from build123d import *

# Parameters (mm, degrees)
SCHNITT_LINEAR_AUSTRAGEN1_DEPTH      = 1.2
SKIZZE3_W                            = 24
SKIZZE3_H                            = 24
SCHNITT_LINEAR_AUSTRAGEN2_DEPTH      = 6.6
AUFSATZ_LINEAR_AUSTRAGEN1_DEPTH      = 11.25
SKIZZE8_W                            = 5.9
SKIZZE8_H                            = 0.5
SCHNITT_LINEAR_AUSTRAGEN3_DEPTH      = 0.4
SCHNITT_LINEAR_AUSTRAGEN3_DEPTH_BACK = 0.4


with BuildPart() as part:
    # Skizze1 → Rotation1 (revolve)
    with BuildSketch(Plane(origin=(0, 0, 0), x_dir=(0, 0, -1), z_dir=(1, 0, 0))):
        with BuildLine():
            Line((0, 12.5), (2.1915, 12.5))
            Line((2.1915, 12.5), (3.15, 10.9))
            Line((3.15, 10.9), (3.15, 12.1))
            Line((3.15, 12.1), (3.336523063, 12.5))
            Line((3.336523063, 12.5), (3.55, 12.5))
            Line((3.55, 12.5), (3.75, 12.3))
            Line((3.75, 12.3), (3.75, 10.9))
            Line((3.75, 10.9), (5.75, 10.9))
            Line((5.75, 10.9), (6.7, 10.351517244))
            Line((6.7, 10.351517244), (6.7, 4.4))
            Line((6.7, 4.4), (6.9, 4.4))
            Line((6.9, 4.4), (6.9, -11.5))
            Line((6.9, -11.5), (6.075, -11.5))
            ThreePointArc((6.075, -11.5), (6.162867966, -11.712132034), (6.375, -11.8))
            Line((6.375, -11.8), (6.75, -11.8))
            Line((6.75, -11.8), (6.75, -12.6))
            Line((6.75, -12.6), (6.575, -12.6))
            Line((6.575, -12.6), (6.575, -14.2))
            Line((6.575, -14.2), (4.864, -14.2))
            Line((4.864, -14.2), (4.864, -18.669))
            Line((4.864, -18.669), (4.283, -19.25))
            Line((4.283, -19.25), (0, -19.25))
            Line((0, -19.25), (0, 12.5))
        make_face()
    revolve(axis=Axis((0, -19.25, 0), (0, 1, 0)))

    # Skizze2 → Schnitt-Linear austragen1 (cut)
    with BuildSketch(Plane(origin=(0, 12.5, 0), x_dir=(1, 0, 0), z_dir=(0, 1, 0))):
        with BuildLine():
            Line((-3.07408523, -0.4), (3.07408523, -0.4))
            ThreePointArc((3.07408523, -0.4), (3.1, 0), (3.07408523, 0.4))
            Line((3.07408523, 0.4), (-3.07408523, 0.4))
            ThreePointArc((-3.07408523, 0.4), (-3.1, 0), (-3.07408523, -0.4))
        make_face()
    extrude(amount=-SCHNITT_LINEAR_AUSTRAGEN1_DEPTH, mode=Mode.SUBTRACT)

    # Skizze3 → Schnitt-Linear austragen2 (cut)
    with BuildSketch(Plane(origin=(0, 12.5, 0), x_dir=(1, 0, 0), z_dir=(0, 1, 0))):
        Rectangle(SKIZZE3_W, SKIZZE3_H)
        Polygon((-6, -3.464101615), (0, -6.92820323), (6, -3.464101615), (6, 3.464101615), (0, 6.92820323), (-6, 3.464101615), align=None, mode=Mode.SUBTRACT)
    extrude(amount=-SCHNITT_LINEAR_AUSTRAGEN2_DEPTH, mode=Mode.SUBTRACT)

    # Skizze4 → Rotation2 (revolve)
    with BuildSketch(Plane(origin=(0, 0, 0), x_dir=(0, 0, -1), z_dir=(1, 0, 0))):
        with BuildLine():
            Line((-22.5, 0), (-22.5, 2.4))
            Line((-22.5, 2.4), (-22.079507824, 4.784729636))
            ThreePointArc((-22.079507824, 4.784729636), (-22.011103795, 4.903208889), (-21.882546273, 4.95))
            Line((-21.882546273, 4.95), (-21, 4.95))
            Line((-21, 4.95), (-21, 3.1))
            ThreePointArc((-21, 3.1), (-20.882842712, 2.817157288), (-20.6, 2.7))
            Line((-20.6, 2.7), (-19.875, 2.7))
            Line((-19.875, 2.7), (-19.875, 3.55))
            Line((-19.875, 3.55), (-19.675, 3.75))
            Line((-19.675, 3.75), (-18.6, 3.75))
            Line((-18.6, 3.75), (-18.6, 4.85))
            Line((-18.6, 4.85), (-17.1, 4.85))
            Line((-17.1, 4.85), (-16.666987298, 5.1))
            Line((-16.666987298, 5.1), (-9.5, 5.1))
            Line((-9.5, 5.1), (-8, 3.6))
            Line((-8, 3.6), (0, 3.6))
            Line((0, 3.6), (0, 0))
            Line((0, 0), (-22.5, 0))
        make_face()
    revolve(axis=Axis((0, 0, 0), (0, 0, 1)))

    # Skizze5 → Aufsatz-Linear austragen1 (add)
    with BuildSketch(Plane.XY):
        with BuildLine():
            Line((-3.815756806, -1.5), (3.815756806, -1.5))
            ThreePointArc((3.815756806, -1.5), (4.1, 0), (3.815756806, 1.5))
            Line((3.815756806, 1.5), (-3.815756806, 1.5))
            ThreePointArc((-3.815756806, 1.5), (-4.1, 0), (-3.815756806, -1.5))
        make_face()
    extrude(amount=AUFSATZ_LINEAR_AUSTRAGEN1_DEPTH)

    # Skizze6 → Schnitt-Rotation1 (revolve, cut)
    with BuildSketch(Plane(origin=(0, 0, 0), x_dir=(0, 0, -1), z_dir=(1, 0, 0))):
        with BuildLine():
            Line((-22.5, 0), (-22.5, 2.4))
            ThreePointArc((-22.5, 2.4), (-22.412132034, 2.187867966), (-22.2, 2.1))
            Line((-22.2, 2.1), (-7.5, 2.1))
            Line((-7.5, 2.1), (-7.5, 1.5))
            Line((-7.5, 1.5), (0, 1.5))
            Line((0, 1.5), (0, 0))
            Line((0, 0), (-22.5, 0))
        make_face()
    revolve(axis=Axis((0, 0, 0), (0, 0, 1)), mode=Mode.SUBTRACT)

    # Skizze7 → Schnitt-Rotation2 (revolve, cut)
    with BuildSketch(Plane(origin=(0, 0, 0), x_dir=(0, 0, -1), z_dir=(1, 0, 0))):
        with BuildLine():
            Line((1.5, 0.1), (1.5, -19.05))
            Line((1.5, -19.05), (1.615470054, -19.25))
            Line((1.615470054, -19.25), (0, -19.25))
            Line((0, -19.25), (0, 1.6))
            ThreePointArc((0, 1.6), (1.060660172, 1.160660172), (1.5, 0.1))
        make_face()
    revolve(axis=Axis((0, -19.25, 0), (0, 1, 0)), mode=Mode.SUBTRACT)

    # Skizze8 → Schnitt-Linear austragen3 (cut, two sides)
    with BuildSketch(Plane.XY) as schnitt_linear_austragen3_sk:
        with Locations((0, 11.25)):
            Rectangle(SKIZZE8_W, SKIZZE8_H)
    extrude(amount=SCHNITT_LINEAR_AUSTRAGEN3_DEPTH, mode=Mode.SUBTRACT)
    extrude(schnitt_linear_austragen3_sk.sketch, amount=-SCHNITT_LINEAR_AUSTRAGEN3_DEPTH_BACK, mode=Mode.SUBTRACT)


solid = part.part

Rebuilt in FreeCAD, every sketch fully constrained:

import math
import FreeCAD as App
import Part
import Sketcher
Q = App.Units.Quantity


def add_polygon(sketch, points):
    """Adds a closed chain of lines whose ends are joined by coincident constraints."""
    first, n = sketch.GeometryCount, len(points)
    for a, b in zip(points, points[1:] + points[:1]):
        sketch.addGeometry(Part.LineSegment(App.Vector(*a, 0), App.Vector(*b, 0)), False)
    for i in range(n):
        sketch.addConstraint(Sketcher.Constraint("Coincident", first + i, 2, first + (i + 1) % n, 1))

doc = App.newDocument("Part")
body = doc.addObject("PartDesign::Body", "Body")

# Sketch on YZ plane
sketch1 = body.newObject("Sketcher::SketchObject", "Sketch")
sketch1.AttachmentSupport = (doc.getObject("YZ_Plane"), [""])
sketch1.MapMode = "FlatFace"
sketch1.addGeometry(Part.LineSegment(App.Vector(12.5, -2.19, 0), App.Vector(12.5, 0, 0)), False)
sketch1.addGeometry(Part.LineSegment(App.Vector(12.5, 0, 0), App.Vector(-19.25, 0, 0)), False)
sketch1.addGeometry(Part.LineSegment(App.Vector(-19.25, 0, 0), App.Vector(-19.25, -4.28, 0)), False)
sketch1.addGeometry(Part.LineSegment(App.Vector(-19.25, -4.28, 0), App.Vector(-18.67, -4.86, 0)), False)
sketch1.addGeometry(Part.LineSegment(App.Vector(-18.67, -4.86, 0), App.Vector(-14.2, -4.86, 0)), False)
sketch1.addGeometry(Part.LineSegment(App.Vector(-14.2, -4.86, 0), App.Vector(-14.2, -6.58, 0)), False)
sketch1.addGeometry(Part.LineSegment(App.Vector(-14.2, -6.58, 0), App.Vector(-12.6, -6.58, 0)), False)
sketch1.addGeometry(Part.LineSegment(App.Vector(-12.6, -6.58, 0), App.Vector(-12.6, -6.75, 0)), False)
sketch1.addGeometry(Part.LineSegment(App.Vector(-12.6, -6.75, 0), App.Vector(-11.8, -6.75, 0)), False)
sketch1.addGeometry(Part.LineSegment(App.Vector(-11.8, -6.75, 0), App.Vector(-11.8, -6.38, 0)), False)
sketch1.addGeometry(Part.ArcOfCircle(Part.Circle(App.Vector(-11.5, -6.38, 0), App.Vector(0, 0, 1), 0.3), math.radians(90), math.radians(180)), False)
sketch1.addGeometry(Part.LineSegment(App.Vector(-11.5, -6.08, 0), App.Vector(-11.5, -6.9, 0)), False)
sketch1.addGeometry(Part.LineSegment(App.Vector(-11.5, -6.9, 0), App.Vector(4.4, -6.9, 0)), False)
sketch1.addGeometry(Part.LineSegment(App.Vector(4.4, -6.9, 0), App.Vector(4.4, -6.7, 0)), False)
sketch1.addGeometry(Part.LineSegment(App.Vector(4.4, -6.7, 0), App.Vector(10.35, -6.7, 0)), False)
sketch1.addGeometry(Part.LineSegment(App.Vector(10.35, -6.7, 0), App.Vector(10.9, -5.75, 0)), False)
sketch1.addGeometry(Part.LineSegment(App.Vector(10.9, -5.75, 0), App.Vector(10.9, -3.75, 0)), False)
sketch1.addGeometry(Part.LineSegment(App.Vector(10.9, -3.75, 0), App.Vector(12.3, -3.75, 0)), False)
sketch1.addGeometry(Part.LineSegment(App.Vector(12.3, -3.75, 0), App.Vector(12.5, -3.55, 0)), False)
sketch1.addGeometry(Part.LineSegment(App.Vector(12.5, -3.55, 0), App.Vector(12.5, -3.34, 0)), False)
sketch1.addGeometry(Part.LineSegment(App.Vector(12.5, -3.34, 0), App.Vector(12.1, -3.15, 0)), False)
sketch1.addGeometry(Part.LineSegment(App.Vector(12.1, -3.15, 0), App.Vector(10.9, -3.15, 0)), False)
sketch1.addGeometry(Part.LineSegment(App.Vector(10.9, -3.15, 0), App.Vector(12.5, -2.19, 0)), False)
sketch1.addConstraint(Sketcher.Constraint("Coincident", 0, 2, 1, 1))
sketch1.addConstraint(Sketcher.Constraint("Coincident", 1, 2, 2, 1))
sketch1.addConstraint(Sketcher.Constraint("Coincident", 2, 2, 3, 1))
sketch1.addConstraint(Sketcher.Constraint("Coincident", 3, 2, 4, 1))
sketch1.addConstraint(Sketcher.Constraint("Coincident", 4, 2, 5, 1))
sketch1.addConstraint(Sketcher.Constraint("Coincident", 5, 2, 6, 1))
sketch1.addConstraint(Sketcher.Constraint("Coincident", 6, 2, 7, 1))
sketch1.addConstraint(Sketcher.Constraint("Coincident", 7, 2, 8, 1))
sketch1.addConstraint(Sketcher.Constraint("Coincident", 8, 2, 9, 1))
sketch1.addConstraint(Sketcher.Constraint("Tangent", 9, 2, 10, 2))
sketch1.addConstraint(Sketcher.Constraint("Coincident", 10, 1, 11, 1))
sketch1.addConstraint(Sketcher.Constraint("Coincident", 11, 2, 12, 1))
sketch1.addConstraint(Sketcher.Constraint("Coincident", 12, 2, 13, 1))
sketch1.addConstraint(Sketcher.Constraint("Coincident", 13, 2, 14, 1))
sketch1.addConstraint(Sketcher.Constraint("Coincident", 14, 2, 15, 1))
sketch1.addConstraint(Sketcher.Constraint("Coincident", 15, 2, 16, 1))
sketch1.addConstraint(Sketcher.Constraint("Coincident", 16, 2, 17, 1))
sketch1.addConstraint(Sketcher.Constraint("Coincident", 17, 2, 18, 1))
sketch1.addConstraint(Sketcher.Constraint("Coincident", 18, 2, 19, 1))
sketch1.addConstraint(Sketcher.Constraint("Coincident", 19, 2, 20, 1))
sketch1.addConstraint(Sketcher.Constraint("Coincident", 20, 2, 21, 1))
sketch1.addConstraint(Sketcher.Constraint("Coincident", 21, 2, 22, 1))
sketch1.addConstraint(Sketcher.Constraint("Coincident", 22, 2, 0, 1))
sketch1.addConstraint(Sketcher.Constraint("Vertical", 0))
sketch1.addConstraint(Sketcher.Constraint("Horizontal", 1))
sketch1.addConstraint(Sketcher.Constraint("Vertical", 2))
sketch1.addConstraint(Sketcher.Constraint("Horizontal", 4))
sketch1.addConstraint(Sketcher.Constraint("Vertical", 5))
sketch1.addConstraint(Sketcher.Constraint("Horizontal", 6))
sketch1.addConstraint(Sketcher.Constraint("Vertical", 7))
sketch1.addConstraint(Sketcher.Constraint("Horizontal", 8))
sketch1.addConstraint(Sketcher.Constraint("Vertical", 9))
sketch1.addConstraint(Sketcher.Constraint("Vertical", 11))
sketch1.addConstraint(Sketcher.Constraint("Horizontal", 12))
sketch1.addConstraint(Sketcher.Constraint("Vertical", 13))
sketch1.addConstraint(Sketcher.Constraint("Horizontal", 14))
sketch1.addConstraint(Sketcher.Constraint("Vertical", 16))
sketch1.addConstraint(Sketcher.Constraint("Horizontal", 17))
sketch1.addConstraint(Sketcher.Constraint("Vertical", 19))
sketch1.addConstraint(Sketcher.Constraint("Horizontal", 21))
sketch1.addConstraint(Sketcher.Constraint("PointOnObject", 0, 2, -1))
sketch1.addConstraint(Sketcher.Constraint("Perpendicular", 3, 18))
sketch1.addConstraint(Sketcher.Constraint("Vertical", 0, 2, 18, 2))
sketch1.addConstraint(Sketcher.Constraint("Vertical", 16, 2, 21, 2))
sketch1.addConstraint(Sketcher.Constraint("Radius", 10, 0.3))
sketch1.addConstraint(Sketcher.Constraint("DistanceY", 16, 1, 16, 2, 2.0))
sketch1.addConstraint(Sketcher.Constraint("Angle", 3, Q("-45 deg")))
sketch1.addConstraint(Sketcher.Constraint("Angle", 15, Q("60 deg")))
sketch1.addConstraint(Sketcher.Constraint("Angle", 20, Q("155 deg")))
sketch1.addConstraint(Sketcher.Constraint("DistanceX", 6, 1, 6, 2, 1.6))
sketch1.addConstraint(Sketcher.Constraint("DistanceX", 8, 1, 8, 2, 0.8))
sketch1.addConstraint(Sketcher.Constraint("DistanceX", 12, 1, 12, 2, 15.9))
sketch1.addConstraint(Sketcher.Constraint("DistanceX", 17, 1, 17, 2, 1.4))
sketch1.addConstraint(Sketcher.Constraint("DistanceX", 21, 2, 21, 1, 1.2))
sketch1.addConstraint(Sketcher.Constraint("DistanceY", 13, 1, 13, 2, 0.2))
sketch1.addConstraint(Sketcher.Constraint("DistanceX", 10, 3, 0, 2, 24.0))
sketch1.addConstraint(Sketcher.Constraint("DistanceX", 1, 2, 1, 1, 31.75))
sketch1.addConstraint(Sketcher.Constraint("DistanceX", 10, 3, -1, 1, 11.5))
sketch1.addConstraint(Sketcher.Constraint("DistanceX", 10, 1, -1, 1, 11.5))
sketch1.addConstraint(Sketcher.Constraint("DistanceY", 11, 2, -1, 1, 6.9))
sketch1.addConstraint(Sketcher.Constraint("DistanceX", -1, 1, 15, 2, 10.9))
sketch1.addConstraint(Sketcher.Constraint("DistanceY", 5, 2, 10, 3, 0.2))
sketch1.addConstraint(Sketcher.Constraint("DistanceY", 18, 2, 20, 2, 0.4))
sketch1.addConstraint(Sketcher.Constraint("DistanceX", 4, 1, 4, 2, 4.469))
sketch1.addConstraint(Sketcher.Constraint("DistanceY", 2, 2, 2, 1, 4.283))
sketch1.addConstraint(Sketcher.Constraint("DistanceY", 5, 2, 5, 1, 1.711))
sketch1.addConstraint(Sketcher.Constraint("DistanceY", 7, 2, 7, 1, 0.175))
sketch1.addConstraint(Sketcher.Constraint("DistanceY", 15, 2, -1, 1, 5.75))
sketch1.addConstraint(Sketcher.Constraint("DistanceY", 0, 1, 0, 2, 2.1915))
revolution = body.newObject("PartDesign::Revolution", "Revolution")
revolution.Profile = sketch1
revolution.ReferenceAxis = (sketch1, ["H_Axis"])
revolution.Angle = 360

# Sketch on XZ plane
sketch2 = body.newObject("Sketcher::SketchObject", "Sketch001")
sketch2.AttachmentSupport = (doc.getObject("XZ_Plane"), [""])
sketch2.MapMode = "FlatFace"
sketch2.AttachmentOffset = App.Placement(App.Vector(0, 0, -12.5), App.Rotation())
sketch2.addGeometry(Part.LineSegment(App.Vector(-3.1, 0.4, 0), App.Vector(3.1, 0.4, 0)), False)
sketch2.addGeometry(Part.ArcOfCircle(Part.Circle(App.Vector(0, 0, 0), App.Vector(0, 0, 1), 3.1), math.radians(-7.41), math.radians(7.41)), False)
sketch2.addGeometry(Part.LineSegment(App.Vector(3.1, -0.4, 0), App.Vector(-3.1, -0.4, 0)), False)
sketch2.addGeometry(Part.ArcOfCircle(Part.Circle(App.Vector(0, 0, 0), App.Vector(0, 0, 1), 3.1), math.radians(172.59), math.radians(187.41)), False)
sketch2.addConstraint(Sketcher.Constraint("Coincident", 0, 2, 1, 2))
sketch2.addConstraint(Sketcher.Constraint("Coincident", 1, 1, 2, 1))
sketch2.addConstraint(Sketcher.Constraint("Coincident", 2, 2, 3, 2))
sketch2.addConstraint(Sketcher.Constraint("Coincident", 3, 1, 0, 1))
sketch2.addConstraint(Sketcher.Constraint("Horizontal", 0))
sketch2.addConstraint(Sketcher.Constraint("Horizontal", 2))
sketch2.addConstraint(Sketcher.Constraint("Coincident", 1, 3, -1, 1))
sketch2.addConstraint(Sketcher.Constraint("Coincident", 3, 3, -1, 1))
sketch2.addConstraint(Sketcher.Constraint("Equal", 1, 3))
sketch2.addConstraint(Sketcher.Constraint("Vertical", 0, 2, 1, 1))
sketch2.addConstraint(Sketcher.Constraint("Radius", 1, 3.1))
sketch2.addConstraint(Sketcher.Constraint("DistanceY", -1, 1, 0, 2, 0.4))
pocket1 = body.newObject("PartDesign::Pocket", "Pocket")
pocket1.Profile = sketch2
pocket1.Length = 1.2
pocket1.Reversed = True

# Sketch on XZ plane
sketch3 = body.newObject("Sketcher::SketchObject", "Sketch002")
sketch3.AttachmentSupport = (doc.getObject("XZ_Plane"), [""])
sketch3.MapMode = "FlatFace"
sketch3.AttachmentOffset = App.Placement(App.Vector(0, 0, -12.5), App.Rotation())
add_polygon(sketch3, [(-12, -12), (-12, 12), (12, 12), (12, -12)])  # lines 0-3
add_polygon(sketch3, [(0, 7), (-6, 3), (-6, -3), (0, -7), (6, -3), (6, 3)])  # lines 4-9
sketch3.addConstraint(Sketcher.Constraint("Vertical", 0))
sketch3.addConstraint(Sketcher.Constraint("Horizontal", 1))
sketch3.addConstraint(Sketcher.Constraint("Vertical", 2))
sketch3.addConstraint(Sketcher.Constraint("Horizontal", 3))
sketch3.addConstraint(Sketcher.Constraint("Vertical", 5))
sketch3.addConstraint(Sketcher.Constraint("Vertical", 8))
sketch3.addConstraint(Sketcher.Constraint("Symmetric", 0, 2, 2, 2, -1, 1))
sketch3.addConstraint(Sketcher.Constraint("Symmetric", 4, 2, 7, 2, -1, 1))
sketch3.addConstraint(Sketcher.Constraint("Symmetric", 6, 2, 9, 2, -1, 1))
sketch3.addConstraint(Sketcher.Constraint("PointOnObject", 6, 2, -2))
sketch3.addConstraint(Sketcher.Constraint("Parallel", 6, 9))
sketch3.addConstraint(Sketcher.Constraint("Horizontal", 5, 2, 7, 2))
sketch3.addConstraint(Sketcher.Constraint("Equal", 3, 0))
sketch3.addConstraint(Sketcher.Constraint("DistanceX", 1, 1, 1, 2, 24.0))
sketch3.addConstraint(Sketcher.Constraint("Angle", 4, Q("-150 deg")))
sketch3.addConstraint(Sketcher.Constraint("DistanceX", 4, 2, -1, 1, 6.0))
sketch3.addConstraint(Sketcher.Constraint("DistanceY", -1, 1, 4, 2, 3.464102))
pocket2 = body.newObject("PartDesign::Pocket", "Pocket001")
pocket2.Profile = sketch3
pocket2.Length = 6.6
pocket2.Reversed = True

# Sketch on YZ plane
sketch4 = body.newObject("Sketcher::SketchObject", "Sketch003")
sketch4.AttachmentSupport = (doc.getObject("YZ_Plane"), [""])
sketch4.MapMode = "FlatFace"
sketch4.addGeometry(Part.LineSegment(App.Vector(2.4, 22.5, 0), App.Vector(0, 22.5, 0)), False)
sketch4.addGeometry(Part.LineSegment(App.Vector(0, 22.5, 0), App.Vector(0, 0, 0)), False)
sketch4.addGeometry(Part.LineSegment(App.Vector(0, 0, 0), App.Vector(3.6, 0, 0)), False)
sketch4.addGeometry(Part.LineSegment(App.Vector(3.6, 0, 0), App.Vector(3.6, 8, 0)), False)
sketch4.addGeometry(Part.LineSegment(App.Vector(3.6, 8, 0), App.Vector(5.1, 9.5, 0)), False)
sketch4.addGeometry(Part.LineSegment(App.Vector(5.1, 9.5, 0), App.Vector(5.1, 16.67, 0)), False)
sketch4.addGeometry(Part.LineSegment(App.Vector(5.1, 16.67, 0), App.Vector(4.85, 17.1, 0)), False)
sketch4.addGeometry(Part.LineSegment(App.Vector(4.85, 17.1, 0), App.Vector(4.85, 18.6, 0)), False)
sketch4.addGeometry(Part.LineSegment(App.Vector(4.85, 18.6, 0), App.Vector(3.75, 18.6, 0)), False)
sketch4.addGeometry(Part.LineSegment(App.Vector(3.75, 18.6, 0), App.Vector(3.75, 19.68, 0)), False)
sketch4.addGeometry(Part.LineSegment(App.Vector(3.75, 19.68, 0), App.Vector(3.55, 19.88, 0)), False)
sketch4.addGeometry(Part.LineSegment(App.Vector(3.55, 19.88, 0), App.Vector(2.7, 19.88, 0)), False)
sketch4.addGeometry(Part.LineSegment(App.Vector(2.7, 19.88, 0), App.Vector(2.7, 20.6, 0)), False)
sketch4.addGeometry(Part.ArcOfCircle(Part.Circle(App.Vector(3.1, 20.6, 0), App.Vector(0, 0, 1), 0.4), math.radians(90), math.radians(180)), False)
sketch4.addGeometry(Part.LineSegment(App.Vector(3.1, 21, 0), App.Vector(4.95, 21, 0)), False)
sketch4.addGeometry(Part.LineSegment(App.Vector(4.95, 21, 0), App.Vector(4.95, 21.88, 0)), False)
sketch4.addGeometry(Part.ArcOfCircle(Part.Circle(App.Vector(4.75, 21.88, 0), App.Vector(0, 0, 1), 0.2), math.radians(0), math.radians(80)), False)
sketch4.addGeometry(Part.LineSegment(App.Vector(4.78, 22.08, 0), App.Vector(2.4, 22.5, 0)), False)
sketch4.addConstraint(Sketcher.Constraint("Coincident", 0, 2, 1, 1))
sketch4.addConstraint(Sketcher.Constraint("Coincident", 1, 2, 2, 1))
sketch4.addConstraint(Sketcher.Constraint("Coincident", 2, 2, 3, 1))
sketch4.addConstraint(Sketcher.Constraint("Coincident", 3, 2, 4, 1))
sketch4.addConstraint(Sketcher.Constraint("Coincident", 4, 2, 5, 1))
sketch4.addConstraint(Sketcher.Constraint("Coincident", 5, 2, 6, 1))
sketch4.addConstraint(Sketcher.Constraint("Coincident", 6, 2, 7, 1))
sketch4.addConstraint(Sketcher.Constraint("Coincident", 7, 2, 8, 1))
sketch4.addConstraint(Sketcher.Constraint("Coincident", 8, 2, 9, 1))
sketch4.addConstraint(Sketcher.Constraint("Coincident", 9, 2, 10, 1))
sketch4.addConstraint(Sketcher.Constraint("Coincident", 10, 2, 11, 1))
sketch4.addConstraint(Sketcher.Constraint("Coincident", 11, 2, 12, 1))
sketch4.addConstraint(Sketcher.Constraint("Tangent", 12, 2, 13, 2))
sketch4.addConstraint(Sketcher.Constraint("Tangent", 13, 1, 14, 1))
sketch4.addConstraint(Sketcher.Constraint("Coincident", 14, 2, 15, 1))
sketch4.addConstraint(Sketcher.Constraint("Tangent", 15, 2, 16, 1))
sketch4.addConstraint(Sketcher.Constraint("Tangent", 16, 2, 17, 1))
sketch4.addConstraint(Sketcher.Constraint("Coincident", 17, 2, 0, 1))
sketch4.addConstraint(Sketcher.Constraint("Horizontal", 0))
sketch4.addConstraint(Sketcher.Constraint("Vertical", 1))
sketch4.addConstraint(Sketcher.Constraint("Horizontal", 2))
sketch4.addConstraint(Sketcher.Constraint("Vertical", 3))
sketch4.addConstraint(Sketcher.Constraint("Vertical", 5))
sketch4.addConstraint(Sketcher.Constraint("Vertical", 7))
sketch4.addConstraint(Sketcher.Constraint("Horizontal", 8))
sketch4.addConstraint(Sketcher.Constraint("Vertical", 9))
sketch4.addConstraint(Sketcher.Constraint("Horizontal", 11))
sketch4.addConstraint(Sketcher.Constraint("Vertical", 12))
sketch4.addConstraint(Sketcher.Constraint("Horizontal", 14))
sketch4.addConstraint(Sketcher.Constraint("Vertical", 15))
sketch4.addConstraint(Sketcher.Constraint("Coincident", 1, 2, -1, 1))
sketch4.addConstraint(Sketcher.Constraint("Perpendicular", 4, 10))
sketch4.addConstraint(Sketcher.Constraint("Radius", 13, 0.4))
sketch4.addConstraint(Sketcher.Constraint("Radius", 16, 0.2))
sketch4.addConstraint(Sketcher.Constraint("DistanceY", 3, 1, 3, 2, 8.0))
sketch4.addConstraint(Sketcher.Constraint("Angle", 4, Q("45 deg")))
sketch4.addConstraint(Sketcher.Constraint("Angle", 6, Q("120 deg")))
sketch4.addConstraint(Sketcher.Constraint("Angle", 17, Q("170 deg")))
sketch4.addConstraint(Sketcher.Constraint("DistanceX", 0, 2, 0, 1, 2.4))
sketch4.addConstraint(Sketcher.Constraint("DistanceX", 2, 1, 2, 2, 3.6))
sketch4.addConstraint(Sketcher.Constraint("DistanceX", 8, 2, 8, 1, 1.1))
sketch4.addConstraint(Sketcher.Constraint("DistanceY", 1, 2, 1, 1, 22.5))
sketch4.addConstraint(Sketcher.Constraint("DistanceY", 7, 1, 7, 2, 1.5))
sketch4.addConstraint(Sketcher.Constraint("DistanceY", -1, 1, 13, 1, 21.0))
sketch4.addConstraint(Sketcher.Constraint("DistanceX", 13, 3, 4, 2, 2.0))
sketch4.addConstraint(Sketcher.Constraint("DistanceY", 7, 2, 13, 3, 2.0))
sketch4.addConstraint(Sketcher.Constraint("DistanceX", 8, 2, 16, 3, 1.0))
sketch4.addConstraint(Sketcher.Constraint("Distance", 6, 0.5))
sketch4.addConstraint(Sketcher.Constraint("DistanceX", 11, 2, 11, 1, 0.85))
sketch4.addConstraint(Sketcher.Constraint("DistanceX", -1, 1, 13, 3, 3.1))
sketch4.addConstraint(Sketcher.Constraint("DistanceY", 9, 1, 9, 2, 1.075))
revolution2 = body.newObject("PartDesign::Revolution", "Revolution001")
revolution2.Profile = sketch4
revolution2.ReferenceAxis = (sketch4, ["V_Axis"])
revolution2.Angle = 360

# Sketch on XY plane
sketch5 = body.newObject("Sketcher::SketchObject", "Sketch004")
sketch5.AttachmentSupport = (doc.getObject("XY_Plane"), [""])
sketch5.MapMode = "FlatFace"
sketch5.addGeometry(Part.LineSegment(App.Vector(-3.8, -1.5, 0), App.Vector(3.8, -1.5, 0)), False)
sketch5.addGeometry(Part.ArcOfCircle(Part.Circle(App.Vector(0, 0, 0), App.Vector(0, 0, 1), 4.1), math.radians(-21), math.radians(21)), False)
sketch5.addGeometry(Part.LineSegment(App.Vector(3.8, 1.5, 0), App.Vector(-3.8, 1.5, 0)), False)
sketch5.addGeometry(Part.ArcOfCircle(Part.Circle(App.Vector(0, 0, 0), App.Vector(0, 0, 1), 4.1), math.radians(159), math.radians(201)), False)
sketch5.addConstraint(Sketcher.Constraint("Coincident", 0, 2, 1, 1))
sketch5.addConstraint(Sketcher.Constraint("Coincident", 1, 2, 2, 1))
sketch5.addConstraint(Sketcher.Constraint("Coincident", 2, 2, 3, 1))
sketch5.addConstraint(Sketcher.Constraint("Coincident", 3, 2, 0, 1))
sketch5.addConstraint(Sketcher.Constraint("Horizontal", 0))
sketch5.addConstraint(Sketcher.Constraint("Horizontal", 2))
sketch5.addConstraint(Sketcher.Constraint("Coincident", 1, 3, -1, 1))
sketch5.addConstraint(Sketcher.Constraint("Coincident", 3, 3, -1, 1))
sketch5.addConstraint(Sketcher.Constraint("Equal", 1, 3))
sketch5.addConstraint(Sketcher.Constraint("Vertical", 0, 2, 1, 2))
sketch5.addConstraint(Sketcher.Constraint("Radius", 1, 4.1))
sketch5.addConstraint(Sketcher.Constraint("DistanceY", 0, 2, 1, 2, 3.0))
pad1 = body.newObject("PartDesign::Pad", "Pad")
pad1.Profile = sketch5
pad1.Length = 11.25

# Sketch on YZ plane
sketch6 = body.newObject("Sketcher::SketchObject", "Sketch005")
sketch6.AttachmentSupport = (doc.getObject("YZ_Plane"), [""])
sketch6.MapMode = "FlatFace"
sketch6.addGeometry(Part.LineSegment(App.Vector(2.4, 22.5, 0), App.Vector(0, 22.5, 0)), False)
sketch6.addGeometry(Part.LineSegment(App.Vector(0, 22.5, 0), App.Vector(0, 0, 0)), False)
sketch6.addGeometry(Part.LineSegment(App.Vector(0, 0, 0), App.Vector(1.5, 0, 0)), False)
sketch6.addGeometry(Part.LineSegment(App.Vector(1.5, 0, 0), App.Vector(1.5, 7.5, 0)), False)
sketch6.addGeometry(Part.LineSegment(App.Vector(1.5, 7.5, 0), App.Vector(2.1, 7.5, 0)), False)
sketch6.addGeometry(Part.LineSegment(App.Vector(2.1, 7.5, 0), App.Vector(2.1, 22.2, 0)), False)
sketch6.addGeometry(Part.ArcOfCircle(Part.Circle(App.Vector(2.4, 22.2, 0), App.Vector(0, 0, 1), 0.3), math.radians(90), math.radians(180)), False)
sketch6.addConstraint(Sketcher.Constraint("Coincident", 0, 2, 1, 1))
sketch6.addConstraint(Sketcher.Constraint("Coincident", 1, 2, 2, 1))
sketch6.addConstraint(Sketcher.Constraint("Coincident", 2, 2, 3, 1))
sketch6.addConstraint(Sketcher.Constraint("Coincident", 3, 2, 4, 1))
sketch6.addConstraint(Sketcher.Constraint("Coincident", 4, 2, 5, 1))
sketch6.addConstraint(Sketcher.Constraint("Tangent", 5, 2, 6, 2))
sketch6.addConstraint(Sketcher.Constraint("Tangent", 6, 1, 0, 1))
sketch6.addConstraint(Sketcher.Constraint("Horizontal", 0))
sketch6.addConstraint(Sketcher.Constraint("Vertical", 1))
sketch6.addConstraint(Sketcher.Constraint("Horizontal", 2))
sketch6.addConstraint(Sketcher.Constraint("Vertical", 3))
sketch6.addConstraint(Sketcher.Constraint("Horizontal", 4))
sketch6.addConstraint(Sketcher.Constraint("Vertical", 5))
sketch6.addConstraint(Sketcher.Constraint("Coincident", 1, 2, -1, 1))
sketch6.addConstraint(Sketcher.Constraint("Radius", 6, 0.3))
sketch6.addConstraint(Sketcher.Constraint("DistanceX", 0, 2, 0, 1, 2.4))
sketch6.addConstraint(Sketcher.Constraint("DistanceX", 2, 1, 2, 2, 1.5))
sketch6.addConstraint(Sketcher.Constraint("DistanceY", 1, 2, 1, 1, 22.5))
sketch6.addConstraint(Sketcher.Constraint("DistanceY", 3, 1, 3, 2, 7.5))
groove = body.newObject("PartDesign::Groove", "Groove")
groove.Profile = sketch6
groove.ReferenceAxis = (sketch6, ["V_Axis"])
groove.Angle = 360

# Sketch on YZ plane
sketch7 = body.newObject("Sketcher::SketchObject", "Sketch006")
sketch7.AttachmentSupport = (doc.getObject("YZ_Plane"), [""])
sketch7.MapMode = "FlatFace"
sketch7.addGeometry(Part.LineSegment(App.Vector(-19.05, -1.5, 0), App.Vector(0.1, -1.5, 0)), False)
sketch7.addGeometry(Part.ArcOfCircle(Part.Circle(App.Vector(0.1, 0, 0), App.Vector(0, 0, 1), 1.5), math.radians(-90), math.radians(0)), False)
sketch7.addGeometry(Part.LineSegment(App.Vector(1.6, 0, 0), App.Vector(-19.25, 0, 0)), False)
sketch7.addGeometry(Part.LineSegment(App.Vector(-19.25, 0, 0), App.Vector(-19.25, -1.62, 0)), False)
sketch7.addGeometry(Part.LineSegment(App.Vector(-19.25, -1.62, 0), App.Vector(-19.05, -1.5, 0)), False)
sketch7.addConstraint(Sketcher.Constraint("Tangent", 0, 2, 1, 1))
sketch7.addConstraint(Sketcher.Constraint("Coincident", 1, 2, 2, 1))
sketch7.addConstraint(Sketcher.Constraint("Coincident", 2, 2, 3, 1))
sketch7.addConstraint(Sketcher.Constraint("Coincident", 3, 2, 4, 1))
sketch7.addConstraint(Sketcher.Constraint("Coincident", 4, 2, 0, 1))
sketch7.addConstraint(Sketcher.Constraint("Horizontal", 0))
sketch7.addConstraint(Sketcher.Constraint("Horizontal", 2))
sketch7.addConstraint(Sketcher.Constraint("Vertical", 3))
sketch7.addConstraint(Sketcher.Constraint("PointOnObject", 1, 3, -1))
sketch7.addConstraint(Sketcher.Constraint("PointOnObject", 1, 2, -1))
sketch7.addConstraint(Sketcher.Constraint("Radius", 1, 1.5))
sketch7.addConstraint(Sketcher.Constraint("Angle", 4, Q("30 deg")))
sketch7.addConstraint(Sketcher.Constraint("DistanceX", 0, 1, 0, 2, 19.15))
sketch7.addConstraint(Sketcher.Constraint("DistanceX", 2, 2, 2, 1, 20.85))
sketch7.addConstraint(Sketcher.Constraint("DistanceX", -1, 1, 1, 3, 0.1))
groove2 = body.newObject("PartDesign::Groove", "Groove001")
groove2.Profile = sketch7
groove2.ReferenceAxis = (sketch7, ["H_Axis"])
groove2.Angle = 360

# Sketch on XY plane
sketch8 = body.newObject("Sketcher::SketchObject", "Sketch007")
sketch8.AttachmentSupport = (doc.getObject("XY_Plane"), [""])
sketch8.MapMode = "FlatFace"
add_polygon(sketch8, [(-3, 11.5), (-3, 11), (3, 11), (3, 11.5)])  # lines 0-3
sketch8.addConstraint(Sketcher.Constraint("Vertical", 0))
sketch8.addConstraint(Sketcher.Constraint("Horizontal", 1))
sketch8.addConstraint(Sketcher.Constraint("Vertical", 2))
sketch8.addConstraint(Sketcher.Constraint("Horizontal", 3))
sketch8.addConstraint(Sketcher.Constraint("DistanceX", 1, 1, 1, 2, 5.9))
sketch8.addConstraint(Sketcher.Constraint("DistanceY", 0, 2, 0, 1, 0.5))
sketch8.addConstraint(Sketcher.Constraint("DistanceY", -1, 1, 0, 2, 11.0))
sketch8.addConstraint(Sketcher.Constraint("DistanceX", 0, 2, -1, 1, 2.95))
pocket3 = body.newObject("PartDesign::Pocket", "Pocket002")
pocket3.Profile = sketch8
pocket3.Type = "TwoLengths"
pocket3.Length = 0.4
pocket3.Length2 = 0.4
pocket3.Reversed = True

doc.recompute()
